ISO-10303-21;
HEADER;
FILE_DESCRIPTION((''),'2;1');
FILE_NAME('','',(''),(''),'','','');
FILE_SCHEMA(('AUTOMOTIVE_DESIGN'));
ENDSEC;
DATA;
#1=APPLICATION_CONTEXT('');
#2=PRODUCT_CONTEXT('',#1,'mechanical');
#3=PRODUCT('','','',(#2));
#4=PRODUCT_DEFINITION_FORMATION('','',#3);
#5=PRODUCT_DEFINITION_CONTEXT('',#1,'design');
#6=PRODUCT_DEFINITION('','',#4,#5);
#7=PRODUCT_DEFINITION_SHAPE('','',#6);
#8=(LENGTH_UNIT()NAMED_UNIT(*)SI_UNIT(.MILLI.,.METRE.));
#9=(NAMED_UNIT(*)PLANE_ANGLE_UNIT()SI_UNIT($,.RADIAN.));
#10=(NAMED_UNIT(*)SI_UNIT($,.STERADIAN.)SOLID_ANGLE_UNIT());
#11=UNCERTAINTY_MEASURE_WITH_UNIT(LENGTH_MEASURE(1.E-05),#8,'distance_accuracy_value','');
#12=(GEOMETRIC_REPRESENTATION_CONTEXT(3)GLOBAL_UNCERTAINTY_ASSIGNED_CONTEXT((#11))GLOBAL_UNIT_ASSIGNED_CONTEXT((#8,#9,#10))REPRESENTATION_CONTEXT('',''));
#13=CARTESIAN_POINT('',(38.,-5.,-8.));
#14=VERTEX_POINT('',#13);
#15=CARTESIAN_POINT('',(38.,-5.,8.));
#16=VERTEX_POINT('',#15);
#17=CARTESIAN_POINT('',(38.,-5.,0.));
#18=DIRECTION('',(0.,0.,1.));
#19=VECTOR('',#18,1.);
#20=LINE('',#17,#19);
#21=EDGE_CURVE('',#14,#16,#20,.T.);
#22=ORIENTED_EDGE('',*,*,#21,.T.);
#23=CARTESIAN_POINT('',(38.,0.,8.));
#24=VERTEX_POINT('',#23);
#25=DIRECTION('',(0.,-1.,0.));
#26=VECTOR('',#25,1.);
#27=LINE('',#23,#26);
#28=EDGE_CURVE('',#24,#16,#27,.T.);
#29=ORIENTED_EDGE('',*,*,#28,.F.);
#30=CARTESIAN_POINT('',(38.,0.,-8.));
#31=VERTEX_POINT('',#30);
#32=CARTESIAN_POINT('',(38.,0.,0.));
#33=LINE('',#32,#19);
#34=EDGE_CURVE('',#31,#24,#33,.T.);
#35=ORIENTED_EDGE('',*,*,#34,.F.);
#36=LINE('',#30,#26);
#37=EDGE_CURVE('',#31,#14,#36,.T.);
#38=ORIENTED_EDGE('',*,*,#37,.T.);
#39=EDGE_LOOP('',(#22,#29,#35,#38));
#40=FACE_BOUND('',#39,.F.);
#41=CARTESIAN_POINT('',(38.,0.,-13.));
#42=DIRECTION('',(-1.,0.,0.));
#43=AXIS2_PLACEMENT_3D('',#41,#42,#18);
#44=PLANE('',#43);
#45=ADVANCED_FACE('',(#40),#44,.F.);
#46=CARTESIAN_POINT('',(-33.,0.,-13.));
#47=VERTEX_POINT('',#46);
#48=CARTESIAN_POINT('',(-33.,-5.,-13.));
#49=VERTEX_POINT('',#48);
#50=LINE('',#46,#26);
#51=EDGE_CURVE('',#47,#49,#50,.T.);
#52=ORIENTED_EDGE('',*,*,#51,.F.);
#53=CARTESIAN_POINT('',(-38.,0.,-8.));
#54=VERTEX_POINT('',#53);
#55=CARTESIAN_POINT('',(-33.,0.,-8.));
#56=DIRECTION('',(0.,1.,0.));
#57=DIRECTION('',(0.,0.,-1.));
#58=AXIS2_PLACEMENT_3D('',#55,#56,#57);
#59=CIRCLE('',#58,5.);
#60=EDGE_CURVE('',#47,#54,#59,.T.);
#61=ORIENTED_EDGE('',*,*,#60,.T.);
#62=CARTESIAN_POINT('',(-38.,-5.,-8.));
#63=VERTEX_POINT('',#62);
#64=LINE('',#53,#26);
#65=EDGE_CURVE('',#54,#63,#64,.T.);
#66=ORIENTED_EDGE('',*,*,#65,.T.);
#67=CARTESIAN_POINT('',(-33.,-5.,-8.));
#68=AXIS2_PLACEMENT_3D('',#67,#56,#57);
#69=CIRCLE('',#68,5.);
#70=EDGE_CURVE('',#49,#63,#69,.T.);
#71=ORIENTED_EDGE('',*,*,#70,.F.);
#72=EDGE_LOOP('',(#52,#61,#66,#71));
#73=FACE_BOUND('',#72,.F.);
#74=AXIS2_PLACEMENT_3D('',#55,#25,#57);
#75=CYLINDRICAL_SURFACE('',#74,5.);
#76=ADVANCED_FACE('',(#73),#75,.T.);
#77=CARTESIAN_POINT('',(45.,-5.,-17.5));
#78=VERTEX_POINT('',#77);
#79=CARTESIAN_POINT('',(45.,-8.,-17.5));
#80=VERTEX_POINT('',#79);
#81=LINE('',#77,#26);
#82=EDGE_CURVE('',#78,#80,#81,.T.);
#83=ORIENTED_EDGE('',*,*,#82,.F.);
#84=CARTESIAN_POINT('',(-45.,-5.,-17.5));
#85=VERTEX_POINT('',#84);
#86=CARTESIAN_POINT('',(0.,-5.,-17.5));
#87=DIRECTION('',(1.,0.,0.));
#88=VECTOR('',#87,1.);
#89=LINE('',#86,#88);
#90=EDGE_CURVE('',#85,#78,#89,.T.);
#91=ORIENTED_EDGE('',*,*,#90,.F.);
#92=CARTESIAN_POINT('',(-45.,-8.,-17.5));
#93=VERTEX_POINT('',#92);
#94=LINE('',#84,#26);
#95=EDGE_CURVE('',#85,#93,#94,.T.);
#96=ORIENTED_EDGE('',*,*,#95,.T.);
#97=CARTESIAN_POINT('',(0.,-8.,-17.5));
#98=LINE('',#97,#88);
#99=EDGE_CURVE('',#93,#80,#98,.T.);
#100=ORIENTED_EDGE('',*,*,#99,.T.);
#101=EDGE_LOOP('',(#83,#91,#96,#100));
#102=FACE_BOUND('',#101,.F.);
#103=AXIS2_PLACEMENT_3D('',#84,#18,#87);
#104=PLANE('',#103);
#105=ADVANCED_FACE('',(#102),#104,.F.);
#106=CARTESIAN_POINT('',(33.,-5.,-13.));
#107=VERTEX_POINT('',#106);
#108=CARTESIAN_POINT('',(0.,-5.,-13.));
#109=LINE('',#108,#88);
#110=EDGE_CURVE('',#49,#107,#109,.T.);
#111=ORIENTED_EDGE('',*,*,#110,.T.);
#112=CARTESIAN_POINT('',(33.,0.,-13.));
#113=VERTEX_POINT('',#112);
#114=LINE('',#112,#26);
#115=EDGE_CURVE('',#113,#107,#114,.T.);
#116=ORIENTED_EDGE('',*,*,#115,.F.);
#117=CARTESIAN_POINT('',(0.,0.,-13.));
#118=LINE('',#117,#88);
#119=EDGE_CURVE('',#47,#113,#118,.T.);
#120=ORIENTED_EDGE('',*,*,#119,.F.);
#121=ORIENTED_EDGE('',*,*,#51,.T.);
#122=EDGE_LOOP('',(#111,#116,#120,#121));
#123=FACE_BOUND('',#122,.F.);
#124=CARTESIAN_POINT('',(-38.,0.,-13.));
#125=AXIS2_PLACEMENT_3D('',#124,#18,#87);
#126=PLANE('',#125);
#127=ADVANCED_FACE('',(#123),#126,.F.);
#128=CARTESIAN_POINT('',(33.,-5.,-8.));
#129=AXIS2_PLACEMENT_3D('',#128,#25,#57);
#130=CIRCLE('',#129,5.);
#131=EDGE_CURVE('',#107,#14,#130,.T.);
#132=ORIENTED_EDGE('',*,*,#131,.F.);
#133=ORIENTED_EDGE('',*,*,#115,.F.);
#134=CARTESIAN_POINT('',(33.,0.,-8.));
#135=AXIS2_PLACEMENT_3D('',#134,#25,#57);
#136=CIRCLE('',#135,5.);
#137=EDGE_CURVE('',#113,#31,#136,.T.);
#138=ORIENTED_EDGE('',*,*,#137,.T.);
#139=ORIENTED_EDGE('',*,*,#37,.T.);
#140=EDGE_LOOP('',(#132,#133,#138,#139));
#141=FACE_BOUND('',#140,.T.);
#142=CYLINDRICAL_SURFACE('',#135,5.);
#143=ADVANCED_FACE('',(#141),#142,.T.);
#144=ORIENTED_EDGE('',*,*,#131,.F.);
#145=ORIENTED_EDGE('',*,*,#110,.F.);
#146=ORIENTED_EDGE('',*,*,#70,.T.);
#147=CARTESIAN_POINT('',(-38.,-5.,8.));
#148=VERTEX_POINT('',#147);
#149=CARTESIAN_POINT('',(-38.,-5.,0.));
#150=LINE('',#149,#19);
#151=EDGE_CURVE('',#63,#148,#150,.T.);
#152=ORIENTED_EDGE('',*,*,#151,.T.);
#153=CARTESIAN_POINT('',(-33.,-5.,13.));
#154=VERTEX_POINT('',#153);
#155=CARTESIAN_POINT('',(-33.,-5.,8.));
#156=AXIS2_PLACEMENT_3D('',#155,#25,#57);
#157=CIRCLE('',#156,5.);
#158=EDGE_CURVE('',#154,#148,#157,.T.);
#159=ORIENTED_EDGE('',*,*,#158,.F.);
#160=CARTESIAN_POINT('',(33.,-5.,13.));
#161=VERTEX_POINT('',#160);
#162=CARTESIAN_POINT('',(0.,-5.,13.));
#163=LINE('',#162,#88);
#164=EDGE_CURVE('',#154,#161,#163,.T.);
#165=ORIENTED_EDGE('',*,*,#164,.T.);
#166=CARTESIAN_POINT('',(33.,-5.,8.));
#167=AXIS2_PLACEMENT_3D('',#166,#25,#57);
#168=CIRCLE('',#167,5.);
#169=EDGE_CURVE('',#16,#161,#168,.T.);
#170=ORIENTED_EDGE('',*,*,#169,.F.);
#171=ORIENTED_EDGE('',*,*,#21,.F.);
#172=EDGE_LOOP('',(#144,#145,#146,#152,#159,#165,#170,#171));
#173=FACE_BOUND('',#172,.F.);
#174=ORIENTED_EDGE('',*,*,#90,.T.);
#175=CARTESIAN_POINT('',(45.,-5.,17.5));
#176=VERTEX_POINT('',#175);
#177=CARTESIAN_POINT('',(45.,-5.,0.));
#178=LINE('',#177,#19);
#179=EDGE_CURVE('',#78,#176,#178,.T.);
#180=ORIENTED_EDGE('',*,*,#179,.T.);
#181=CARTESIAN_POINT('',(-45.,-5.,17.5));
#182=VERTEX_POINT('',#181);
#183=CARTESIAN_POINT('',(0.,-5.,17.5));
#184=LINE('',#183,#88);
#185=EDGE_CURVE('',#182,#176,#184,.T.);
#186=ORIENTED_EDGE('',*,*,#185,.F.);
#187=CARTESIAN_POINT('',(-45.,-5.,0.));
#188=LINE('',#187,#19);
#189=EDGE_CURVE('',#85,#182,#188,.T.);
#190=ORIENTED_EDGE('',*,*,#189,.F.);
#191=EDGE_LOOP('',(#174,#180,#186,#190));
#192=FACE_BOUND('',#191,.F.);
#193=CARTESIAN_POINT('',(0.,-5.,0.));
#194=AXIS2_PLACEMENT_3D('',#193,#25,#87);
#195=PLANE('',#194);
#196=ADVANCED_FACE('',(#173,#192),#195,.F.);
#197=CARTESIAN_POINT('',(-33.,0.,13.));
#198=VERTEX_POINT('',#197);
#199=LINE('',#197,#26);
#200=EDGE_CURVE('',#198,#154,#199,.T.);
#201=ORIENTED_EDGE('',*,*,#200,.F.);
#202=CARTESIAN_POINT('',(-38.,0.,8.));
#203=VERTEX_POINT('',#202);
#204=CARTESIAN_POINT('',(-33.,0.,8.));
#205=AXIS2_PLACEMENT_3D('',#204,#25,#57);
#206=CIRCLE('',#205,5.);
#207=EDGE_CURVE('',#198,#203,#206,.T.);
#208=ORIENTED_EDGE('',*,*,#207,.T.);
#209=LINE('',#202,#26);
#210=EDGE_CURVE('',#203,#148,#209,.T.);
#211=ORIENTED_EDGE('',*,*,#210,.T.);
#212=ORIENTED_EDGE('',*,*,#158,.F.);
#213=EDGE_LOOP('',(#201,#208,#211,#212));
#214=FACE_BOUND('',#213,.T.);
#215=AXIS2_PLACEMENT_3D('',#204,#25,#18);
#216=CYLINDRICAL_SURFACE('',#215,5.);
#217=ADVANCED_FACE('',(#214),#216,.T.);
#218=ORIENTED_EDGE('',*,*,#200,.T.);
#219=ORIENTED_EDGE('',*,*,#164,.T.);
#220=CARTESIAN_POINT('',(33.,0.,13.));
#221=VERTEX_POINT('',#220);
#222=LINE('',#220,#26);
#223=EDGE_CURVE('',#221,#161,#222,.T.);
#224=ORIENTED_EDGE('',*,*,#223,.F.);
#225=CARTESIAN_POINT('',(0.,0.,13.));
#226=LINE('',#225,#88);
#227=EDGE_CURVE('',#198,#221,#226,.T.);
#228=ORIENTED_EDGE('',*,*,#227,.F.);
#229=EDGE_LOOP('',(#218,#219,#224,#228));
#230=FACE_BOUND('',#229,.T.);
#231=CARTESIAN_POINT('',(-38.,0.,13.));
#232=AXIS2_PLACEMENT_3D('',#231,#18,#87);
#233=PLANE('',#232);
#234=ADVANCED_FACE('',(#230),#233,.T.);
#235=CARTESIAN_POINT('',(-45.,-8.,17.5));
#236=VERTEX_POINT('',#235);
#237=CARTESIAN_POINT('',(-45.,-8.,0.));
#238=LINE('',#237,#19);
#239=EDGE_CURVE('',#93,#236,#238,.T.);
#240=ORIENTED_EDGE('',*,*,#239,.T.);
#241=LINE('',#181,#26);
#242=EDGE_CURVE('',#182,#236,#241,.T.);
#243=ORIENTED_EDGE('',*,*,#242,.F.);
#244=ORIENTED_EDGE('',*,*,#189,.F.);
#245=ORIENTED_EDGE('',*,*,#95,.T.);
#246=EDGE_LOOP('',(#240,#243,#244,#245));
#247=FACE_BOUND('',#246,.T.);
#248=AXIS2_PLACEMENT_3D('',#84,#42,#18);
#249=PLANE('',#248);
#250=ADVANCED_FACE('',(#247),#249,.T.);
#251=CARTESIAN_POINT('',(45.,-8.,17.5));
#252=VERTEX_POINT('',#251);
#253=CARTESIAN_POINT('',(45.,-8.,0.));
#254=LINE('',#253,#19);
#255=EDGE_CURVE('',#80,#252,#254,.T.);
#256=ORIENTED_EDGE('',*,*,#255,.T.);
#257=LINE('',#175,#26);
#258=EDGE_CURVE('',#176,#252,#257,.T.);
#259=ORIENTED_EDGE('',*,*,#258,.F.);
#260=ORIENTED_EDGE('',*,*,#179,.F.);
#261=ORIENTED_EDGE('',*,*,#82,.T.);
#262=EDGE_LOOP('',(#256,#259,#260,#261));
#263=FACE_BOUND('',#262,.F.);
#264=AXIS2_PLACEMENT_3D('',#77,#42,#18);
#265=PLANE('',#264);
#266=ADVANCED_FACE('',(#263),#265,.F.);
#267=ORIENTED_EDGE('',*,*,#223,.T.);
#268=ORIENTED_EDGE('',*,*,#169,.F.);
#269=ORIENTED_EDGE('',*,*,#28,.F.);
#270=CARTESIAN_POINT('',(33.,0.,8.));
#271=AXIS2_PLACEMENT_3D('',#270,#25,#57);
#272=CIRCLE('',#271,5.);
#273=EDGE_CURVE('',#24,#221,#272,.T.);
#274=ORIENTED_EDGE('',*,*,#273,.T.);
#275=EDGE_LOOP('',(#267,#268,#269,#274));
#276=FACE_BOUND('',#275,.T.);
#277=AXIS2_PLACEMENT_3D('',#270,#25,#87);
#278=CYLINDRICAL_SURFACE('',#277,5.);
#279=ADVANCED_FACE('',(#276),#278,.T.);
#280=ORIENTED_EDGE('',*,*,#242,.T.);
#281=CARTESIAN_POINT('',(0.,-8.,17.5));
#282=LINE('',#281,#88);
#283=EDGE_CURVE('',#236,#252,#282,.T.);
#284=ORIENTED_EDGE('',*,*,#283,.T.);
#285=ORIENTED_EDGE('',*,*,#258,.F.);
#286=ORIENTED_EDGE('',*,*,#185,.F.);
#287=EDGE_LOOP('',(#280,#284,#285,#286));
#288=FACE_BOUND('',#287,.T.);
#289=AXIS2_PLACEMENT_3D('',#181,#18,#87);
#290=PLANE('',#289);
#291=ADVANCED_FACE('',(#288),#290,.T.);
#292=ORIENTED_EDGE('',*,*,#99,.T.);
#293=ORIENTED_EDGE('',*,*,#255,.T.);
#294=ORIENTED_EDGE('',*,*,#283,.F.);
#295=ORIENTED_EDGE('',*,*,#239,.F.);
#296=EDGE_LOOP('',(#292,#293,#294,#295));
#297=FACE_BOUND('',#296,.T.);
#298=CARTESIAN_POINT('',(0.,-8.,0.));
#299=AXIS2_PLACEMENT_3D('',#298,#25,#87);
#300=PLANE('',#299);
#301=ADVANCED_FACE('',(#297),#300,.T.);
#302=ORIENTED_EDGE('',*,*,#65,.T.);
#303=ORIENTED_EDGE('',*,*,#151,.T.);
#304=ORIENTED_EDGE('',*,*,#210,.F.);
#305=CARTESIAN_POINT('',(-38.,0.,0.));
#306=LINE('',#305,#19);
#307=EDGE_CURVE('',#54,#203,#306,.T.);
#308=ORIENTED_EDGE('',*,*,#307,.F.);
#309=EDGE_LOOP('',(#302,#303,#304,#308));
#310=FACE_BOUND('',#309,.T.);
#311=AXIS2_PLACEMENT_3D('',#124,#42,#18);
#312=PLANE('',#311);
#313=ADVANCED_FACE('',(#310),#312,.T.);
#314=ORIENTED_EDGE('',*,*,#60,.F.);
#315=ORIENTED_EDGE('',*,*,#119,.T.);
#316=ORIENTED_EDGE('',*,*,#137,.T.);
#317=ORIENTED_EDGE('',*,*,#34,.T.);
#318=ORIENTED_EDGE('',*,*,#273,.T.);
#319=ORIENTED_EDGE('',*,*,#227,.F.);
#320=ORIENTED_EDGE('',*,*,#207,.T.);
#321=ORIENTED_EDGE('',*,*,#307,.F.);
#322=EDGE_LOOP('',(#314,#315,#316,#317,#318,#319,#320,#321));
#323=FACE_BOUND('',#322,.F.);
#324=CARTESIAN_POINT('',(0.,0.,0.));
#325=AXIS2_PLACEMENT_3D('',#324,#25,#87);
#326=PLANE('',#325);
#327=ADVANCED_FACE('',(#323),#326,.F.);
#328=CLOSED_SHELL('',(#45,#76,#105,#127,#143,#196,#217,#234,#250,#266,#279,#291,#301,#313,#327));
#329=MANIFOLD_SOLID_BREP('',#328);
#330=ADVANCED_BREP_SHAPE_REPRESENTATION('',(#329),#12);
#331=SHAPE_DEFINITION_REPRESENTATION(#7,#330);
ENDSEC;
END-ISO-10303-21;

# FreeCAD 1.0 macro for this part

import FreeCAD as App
import Part
import Sketcher

V = App.Vector


def edges_at(feature, points):
    """Names of the edges that pass closest to the given points."""
    edges = feature.Shape.Edges
    near = lambda p: min(range(len(edges)), key=lambda i: edges[i].distToShape(Part.Vertex(*p))[0])
    return sorted({f"Edge{near(p) + 1}" for p in points})

doc = App.newDocument("Part")
body = doc.addObject("PartDesign::Body", "Body")

sketch1 = doc.addObject("Sketcher::SketchObject", "Sketch")
body.addObject(sketch1)
sketch1.AttachmentSupport = (doc.XZ_Plane, [""])
sketch1.MapMode = "FlatFace"
sketch1.addGeometry(Part.LineSegment(V(-38, 13, 0), V(-38, -13, 0)), False)
sketch1.addGeometry(Part.LineSegment(V(-38, -13, 0), V(38, -13, 0)), False)
sketch1.addGeometry(Part.LineSegment(V(38, -13, 0), V(38, 13, 0)), False)
sketch1.addGeometry(Part.LineSegment(V(38, 13, 0), V(-38, 13, 0)), False)
sketch1.addConstraint(Sketcher.Constraint("Coincident", 0, 2, 1, 1))
sketch1.addConstraint(Sketcher.Constraint("Coincident", 1, 2, 2, 1))
sketch1.addConstraint(Sketcher.Constraint("Coincident", 2, 2, 3, 1))
sketch1.addConstraint(Sketcher.Constraint("Coincident", 3, 2, 0, 1))
sketch1.addConstraint(Sketcher.Constraint("Vertical", 0))
sketch1.addConstraint(Sketcher.Constraint("Horizontal", 1))
sketch1.addConstraint(Sketcher.Constraint("Vertical", 2))
sketch1.addConstraint(Sketcher.Constraint("Horizontal", 3))
sketch1.addConstraint(Sketcher.Constraint("Symmetric", 0, 2, 2, 2, -1, 1))
sketch1.addConstraint(Sketcher.Constraint("DistanceX", 1, 1, 1, 2, 76.0))
sketch1.addConstraint(Sketcher.Constraint("DistanceY", 0, 2, 0, 1, 26.0))
pad1 = doc.addObject("PartDesign::Pad", "Pad")
body.addObject(pad1)
pad1.Profile = sketch1
pad1.Length = 5

sketch2 = doc.addObject("Sketcher::SketchObject", "Sketch001")
body.addObject(sketch2)
sketch2.AttachmentSupport = (doc.XZ_Plane, [""])
sketch2.MapMode = "FlatFace"
sketch2.AttachmentOffset = App.Placement(V(0, 0, 5), App.Rotation())
sketch2.addGeometry(Part.LineSegment(V(-45, 17.5, 0), V(-45, -17.5, 0)), False)
sketch2.addGeometry(Part.LineSegment(V(-45, -17.5, 0), V(45, -17.5, 0)), False)
sketch2.addGeometry(Part.LineSegment(V(45, -17.5, 0), V(45, 17.5, 0)), False)
sketch2.addGeometry(Part.LineSegment(V(45, 17.5, 0), V(-45, 17.5, 0)), False)
sketch2.addConstraint(Sketcher.Constraint("Coincident", 0, 2, 1, 1))
sketch2.addConstraint(Sketcher.Constraint("Coincident", 1, 2, 2, 1))
sketch2.addConstraint(Sketcher.Constraint("Coincident", 2, 2, 3, 1))
sketch2.addConstraint(Sketcher.Constraint("Coincident", 3, 2, 0, 1))
sketch2.addConstraint(Sketcher.Constraint("Vertical", 0))
sketch2.addConstraint(Sketcher.Constraint("Horizontal", 1))
sketch2.addConstraint(Sketcher.Constraint("Vertical", 2))
sketch2.addConstraint(Sketcher.Constraint("Horizontal", 3))
sketch2.addConstraint(Sketcher.Constraint("Symmetric", 0, 2, 2, 2, -1, 1))
sketch2.addConstraint(Sketcher.Constraint("DistanceX", 1, 1, 1, 2, 90.0))
sketch2.addConstraint(Sketcher.Constraint("DistanceY", 0, 2, 0, 1, 35.0))
pad2 = doc.addObject("PartDesign::Pad", "Pad001")
body.addObject(pad2)
pad2.Profile = sketch2
pad2.Length = 3
doc.recompute()

fillet = doc.addObject("PartDesign::Fillet", "Fillet")
body.addObject(fillet)
fillet.Base = (pad2, edges_at(pad2, [
    (-38, -2.5, 13),
    (38, -2.5, 13),
    (38, -2.5, -13),
    (-38, -2.5, -13),
]))
fillet.Radius = 5

doc.recompute()
